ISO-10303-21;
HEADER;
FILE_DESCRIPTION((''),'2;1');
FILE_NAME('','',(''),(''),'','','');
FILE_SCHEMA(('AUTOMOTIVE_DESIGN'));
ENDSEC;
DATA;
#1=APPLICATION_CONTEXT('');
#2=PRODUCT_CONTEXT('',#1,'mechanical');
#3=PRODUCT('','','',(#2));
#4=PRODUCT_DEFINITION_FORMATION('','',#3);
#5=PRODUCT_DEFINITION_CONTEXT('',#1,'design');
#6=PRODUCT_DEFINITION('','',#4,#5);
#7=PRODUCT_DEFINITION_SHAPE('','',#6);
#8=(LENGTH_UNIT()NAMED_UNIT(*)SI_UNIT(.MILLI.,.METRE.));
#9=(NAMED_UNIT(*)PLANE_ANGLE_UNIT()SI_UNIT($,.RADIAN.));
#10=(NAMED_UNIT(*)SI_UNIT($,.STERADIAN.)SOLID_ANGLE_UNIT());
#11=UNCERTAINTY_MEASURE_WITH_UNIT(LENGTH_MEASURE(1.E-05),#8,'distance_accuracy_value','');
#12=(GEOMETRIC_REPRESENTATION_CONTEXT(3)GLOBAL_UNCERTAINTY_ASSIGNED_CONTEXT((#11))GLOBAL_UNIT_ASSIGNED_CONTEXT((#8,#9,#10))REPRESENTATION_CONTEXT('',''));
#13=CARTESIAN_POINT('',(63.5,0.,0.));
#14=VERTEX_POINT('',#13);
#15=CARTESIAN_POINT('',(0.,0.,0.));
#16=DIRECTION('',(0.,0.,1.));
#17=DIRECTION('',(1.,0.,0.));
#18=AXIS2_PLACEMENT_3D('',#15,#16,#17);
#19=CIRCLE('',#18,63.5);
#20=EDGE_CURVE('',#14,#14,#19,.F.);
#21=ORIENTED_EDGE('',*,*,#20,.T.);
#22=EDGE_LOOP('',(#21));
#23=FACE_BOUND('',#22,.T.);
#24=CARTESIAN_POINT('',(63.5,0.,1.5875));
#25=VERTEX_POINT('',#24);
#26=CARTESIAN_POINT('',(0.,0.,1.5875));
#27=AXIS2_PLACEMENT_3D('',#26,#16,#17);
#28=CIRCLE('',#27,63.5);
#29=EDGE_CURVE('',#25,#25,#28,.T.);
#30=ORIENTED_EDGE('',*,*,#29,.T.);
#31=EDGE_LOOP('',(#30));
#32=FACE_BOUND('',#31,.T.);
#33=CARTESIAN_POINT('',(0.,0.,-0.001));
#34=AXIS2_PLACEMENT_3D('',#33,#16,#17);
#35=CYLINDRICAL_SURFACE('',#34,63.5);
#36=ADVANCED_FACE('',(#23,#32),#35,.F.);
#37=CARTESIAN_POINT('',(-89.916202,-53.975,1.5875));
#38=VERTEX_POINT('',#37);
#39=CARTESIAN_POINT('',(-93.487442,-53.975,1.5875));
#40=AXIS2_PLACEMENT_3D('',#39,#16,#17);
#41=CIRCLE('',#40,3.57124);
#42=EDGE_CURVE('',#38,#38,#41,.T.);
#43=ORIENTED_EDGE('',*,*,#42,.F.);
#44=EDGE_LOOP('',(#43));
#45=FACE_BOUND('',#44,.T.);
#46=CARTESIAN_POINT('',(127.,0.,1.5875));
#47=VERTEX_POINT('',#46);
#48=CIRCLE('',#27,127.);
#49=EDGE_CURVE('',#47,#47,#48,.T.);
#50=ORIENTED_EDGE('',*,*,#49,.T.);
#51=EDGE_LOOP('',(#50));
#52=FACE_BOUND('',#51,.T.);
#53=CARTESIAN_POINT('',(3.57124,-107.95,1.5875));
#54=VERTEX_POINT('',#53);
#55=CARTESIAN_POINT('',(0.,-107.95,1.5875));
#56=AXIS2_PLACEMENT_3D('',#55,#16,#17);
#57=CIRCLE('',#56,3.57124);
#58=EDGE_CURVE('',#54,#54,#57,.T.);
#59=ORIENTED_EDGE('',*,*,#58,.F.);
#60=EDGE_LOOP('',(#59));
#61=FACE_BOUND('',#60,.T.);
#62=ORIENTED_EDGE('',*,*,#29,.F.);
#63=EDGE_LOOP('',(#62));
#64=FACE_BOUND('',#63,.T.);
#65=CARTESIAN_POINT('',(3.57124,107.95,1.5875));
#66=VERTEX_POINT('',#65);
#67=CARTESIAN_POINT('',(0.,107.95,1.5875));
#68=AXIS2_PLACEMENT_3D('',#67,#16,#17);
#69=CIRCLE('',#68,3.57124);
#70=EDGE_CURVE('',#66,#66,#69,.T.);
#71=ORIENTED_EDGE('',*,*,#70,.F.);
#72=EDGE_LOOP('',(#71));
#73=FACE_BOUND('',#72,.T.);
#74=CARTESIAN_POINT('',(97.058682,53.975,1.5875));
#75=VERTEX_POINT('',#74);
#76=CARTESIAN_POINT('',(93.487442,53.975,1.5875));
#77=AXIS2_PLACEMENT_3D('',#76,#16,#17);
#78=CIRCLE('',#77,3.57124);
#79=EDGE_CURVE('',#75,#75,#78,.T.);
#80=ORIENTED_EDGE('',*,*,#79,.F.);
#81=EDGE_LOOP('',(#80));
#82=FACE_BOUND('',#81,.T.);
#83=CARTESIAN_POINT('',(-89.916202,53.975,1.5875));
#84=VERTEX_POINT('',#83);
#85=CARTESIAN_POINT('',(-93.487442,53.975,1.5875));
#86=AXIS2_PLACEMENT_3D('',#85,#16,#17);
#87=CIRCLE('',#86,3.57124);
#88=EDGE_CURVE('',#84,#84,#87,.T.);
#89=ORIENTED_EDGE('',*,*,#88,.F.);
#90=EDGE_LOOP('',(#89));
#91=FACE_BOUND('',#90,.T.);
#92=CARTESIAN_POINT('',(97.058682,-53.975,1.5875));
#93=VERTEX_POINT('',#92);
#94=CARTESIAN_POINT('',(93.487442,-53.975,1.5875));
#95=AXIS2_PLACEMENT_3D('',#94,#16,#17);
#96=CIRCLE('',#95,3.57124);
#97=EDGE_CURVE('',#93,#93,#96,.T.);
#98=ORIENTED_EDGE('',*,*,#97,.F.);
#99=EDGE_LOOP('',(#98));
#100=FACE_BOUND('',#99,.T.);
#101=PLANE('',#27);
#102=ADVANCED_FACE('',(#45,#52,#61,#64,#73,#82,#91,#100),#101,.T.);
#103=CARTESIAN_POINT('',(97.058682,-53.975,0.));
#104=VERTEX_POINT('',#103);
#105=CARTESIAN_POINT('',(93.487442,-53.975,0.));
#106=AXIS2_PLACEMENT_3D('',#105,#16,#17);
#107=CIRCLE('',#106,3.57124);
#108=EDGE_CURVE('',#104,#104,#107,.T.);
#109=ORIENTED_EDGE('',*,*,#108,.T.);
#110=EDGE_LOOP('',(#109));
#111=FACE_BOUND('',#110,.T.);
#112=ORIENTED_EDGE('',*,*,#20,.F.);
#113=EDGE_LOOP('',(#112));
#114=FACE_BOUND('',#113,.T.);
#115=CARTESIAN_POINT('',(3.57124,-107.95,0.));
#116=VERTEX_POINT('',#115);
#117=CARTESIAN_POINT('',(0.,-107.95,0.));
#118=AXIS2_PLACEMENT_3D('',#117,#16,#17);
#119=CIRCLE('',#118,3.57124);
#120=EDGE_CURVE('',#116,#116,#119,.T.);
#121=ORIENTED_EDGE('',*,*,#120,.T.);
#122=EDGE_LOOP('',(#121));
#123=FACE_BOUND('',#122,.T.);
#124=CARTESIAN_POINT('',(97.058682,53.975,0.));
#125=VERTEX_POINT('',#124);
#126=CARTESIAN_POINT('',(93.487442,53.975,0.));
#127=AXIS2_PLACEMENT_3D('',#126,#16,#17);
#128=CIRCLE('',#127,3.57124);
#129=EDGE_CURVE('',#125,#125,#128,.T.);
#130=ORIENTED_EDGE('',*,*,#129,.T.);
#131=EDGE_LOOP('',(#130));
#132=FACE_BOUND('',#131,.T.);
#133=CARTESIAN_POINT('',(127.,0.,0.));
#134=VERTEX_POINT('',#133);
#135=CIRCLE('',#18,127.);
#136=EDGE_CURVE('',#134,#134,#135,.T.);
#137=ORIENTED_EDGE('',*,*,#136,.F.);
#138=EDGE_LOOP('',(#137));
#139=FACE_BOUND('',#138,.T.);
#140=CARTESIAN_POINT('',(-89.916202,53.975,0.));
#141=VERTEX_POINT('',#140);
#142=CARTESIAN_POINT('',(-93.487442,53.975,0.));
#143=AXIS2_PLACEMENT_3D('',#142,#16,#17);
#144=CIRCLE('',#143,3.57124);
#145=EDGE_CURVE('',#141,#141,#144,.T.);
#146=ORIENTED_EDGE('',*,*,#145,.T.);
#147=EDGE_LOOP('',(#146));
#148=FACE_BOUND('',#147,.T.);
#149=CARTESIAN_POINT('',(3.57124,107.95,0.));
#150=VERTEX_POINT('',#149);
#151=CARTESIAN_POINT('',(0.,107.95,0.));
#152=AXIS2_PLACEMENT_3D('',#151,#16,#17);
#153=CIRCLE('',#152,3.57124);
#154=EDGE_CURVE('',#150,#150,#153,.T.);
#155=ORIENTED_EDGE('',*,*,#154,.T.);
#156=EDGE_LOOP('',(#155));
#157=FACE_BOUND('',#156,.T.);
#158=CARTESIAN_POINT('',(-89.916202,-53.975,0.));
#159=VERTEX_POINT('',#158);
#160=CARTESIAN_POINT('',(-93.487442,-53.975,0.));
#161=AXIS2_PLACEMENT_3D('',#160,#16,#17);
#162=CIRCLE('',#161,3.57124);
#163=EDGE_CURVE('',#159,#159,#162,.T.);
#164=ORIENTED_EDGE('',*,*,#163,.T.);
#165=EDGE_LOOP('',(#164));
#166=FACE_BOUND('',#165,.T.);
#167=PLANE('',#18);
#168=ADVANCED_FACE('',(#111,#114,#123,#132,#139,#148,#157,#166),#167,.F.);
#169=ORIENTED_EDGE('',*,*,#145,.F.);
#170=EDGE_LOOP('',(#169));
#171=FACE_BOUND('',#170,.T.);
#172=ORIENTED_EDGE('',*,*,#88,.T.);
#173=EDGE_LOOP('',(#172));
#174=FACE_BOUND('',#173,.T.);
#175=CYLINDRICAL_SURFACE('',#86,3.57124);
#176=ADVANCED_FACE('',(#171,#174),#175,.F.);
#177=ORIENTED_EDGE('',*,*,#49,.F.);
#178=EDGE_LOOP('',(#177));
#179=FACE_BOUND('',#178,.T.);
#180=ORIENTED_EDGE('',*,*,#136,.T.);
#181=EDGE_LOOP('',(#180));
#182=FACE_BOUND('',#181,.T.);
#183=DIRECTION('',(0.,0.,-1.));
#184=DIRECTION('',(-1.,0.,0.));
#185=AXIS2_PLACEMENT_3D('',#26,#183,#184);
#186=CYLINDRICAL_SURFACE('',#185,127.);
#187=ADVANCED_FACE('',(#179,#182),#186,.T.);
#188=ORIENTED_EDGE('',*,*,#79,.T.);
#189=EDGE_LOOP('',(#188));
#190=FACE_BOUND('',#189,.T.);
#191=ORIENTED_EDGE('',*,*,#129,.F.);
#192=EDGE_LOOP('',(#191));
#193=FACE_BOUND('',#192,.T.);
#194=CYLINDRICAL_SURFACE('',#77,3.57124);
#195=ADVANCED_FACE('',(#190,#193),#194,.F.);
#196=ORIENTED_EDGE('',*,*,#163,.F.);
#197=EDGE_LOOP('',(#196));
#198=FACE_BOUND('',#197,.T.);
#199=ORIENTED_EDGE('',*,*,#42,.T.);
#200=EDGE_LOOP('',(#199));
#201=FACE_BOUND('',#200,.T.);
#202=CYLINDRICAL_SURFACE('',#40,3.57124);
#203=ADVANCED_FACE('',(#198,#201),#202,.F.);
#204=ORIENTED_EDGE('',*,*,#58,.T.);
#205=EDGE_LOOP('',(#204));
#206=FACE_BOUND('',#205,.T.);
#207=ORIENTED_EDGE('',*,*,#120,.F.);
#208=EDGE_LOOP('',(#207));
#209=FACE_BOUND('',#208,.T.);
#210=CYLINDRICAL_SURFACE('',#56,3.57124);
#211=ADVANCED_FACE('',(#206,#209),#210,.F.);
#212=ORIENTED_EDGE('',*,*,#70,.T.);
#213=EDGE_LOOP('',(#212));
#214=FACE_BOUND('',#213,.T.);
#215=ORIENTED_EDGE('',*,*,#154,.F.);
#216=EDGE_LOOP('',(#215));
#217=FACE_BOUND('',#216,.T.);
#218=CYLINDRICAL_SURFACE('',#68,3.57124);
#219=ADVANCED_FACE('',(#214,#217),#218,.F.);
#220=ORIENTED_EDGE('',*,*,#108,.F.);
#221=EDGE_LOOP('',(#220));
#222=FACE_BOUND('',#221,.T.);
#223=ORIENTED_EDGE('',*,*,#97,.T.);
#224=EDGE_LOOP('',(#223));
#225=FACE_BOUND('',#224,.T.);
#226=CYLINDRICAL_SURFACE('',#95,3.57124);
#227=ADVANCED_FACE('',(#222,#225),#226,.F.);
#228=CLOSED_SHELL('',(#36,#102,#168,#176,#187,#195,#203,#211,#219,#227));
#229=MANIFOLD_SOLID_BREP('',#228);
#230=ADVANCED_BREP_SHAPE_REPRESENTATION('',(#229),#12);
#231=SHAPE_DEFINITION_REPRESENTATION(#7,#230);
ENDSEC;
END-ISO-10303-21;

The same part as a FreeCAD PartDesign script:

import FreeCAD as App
import Part
import Sketcher

V = App.Vector
Q = App.Units.Quantity

doc = App.newDocument("Part")
body = doc.addObject("PartDesign::Body", "Body")

# Sketch on XY plane
sketch1 = doc.addObject("Sketcher::SketchObject", "Sketch")
body.addObject(sketch1)
sketch1.AttachmentSupport = (doc.XY_Plane, [""])
sketch1.MapMode = "FlatFace"
sketch1.addGeometry(Part.Circle(V(0, 0, 0), V(0, 0, 1), 127), False)
sketch1.addConstraint([
    Sketcher.Constraint("Coincident", 0, 3, -1, 1),
    Sketcher.Constraint("Diameter", 0, Q("10 in")),
])
pad1 = doc.addObject("PartDesign::Pad", "Pad")
body.addObject(pad1)
pad1.Profile = sketch1
pad1.Length = Q("0.0625 in")

# Sketch on XY plane
sketch2 = doc.addObject("Sketcher::SketchObject", "Sketch001")
body.addObject(sketch2)
sketch2.AttachmentSupport = (doc.XY_Plane, [""])
sketch2.MapMode = "FlatFace"
sketch2.AttachmentOffset = App.Placement(V(0, 0, 0.0625 * 25.4), App.Rotation())
sketch2.addGeometry([
    Part.Circle(V(-93.5, 54, 0), V(0, 0, 1), 3.6),  # 0
    Part.Circle(V(0, 108, 0), V(0, 0, 1), 3.6),  # 1
    Part.Circle(V(93.5, 54, 0), V(0, 0, 1), 3.6),  # 2
    Part.Circle(V(93.5, -54, 0), V(0, 0, 1), 3.6),  # 3
    Part.Circle(V(0, -108, 0), V(0, 0, 1), 3.6),  # 4
    Part.Circle(V(-93.5, -54, 0), V(0, 0, 1), 3.6),  # 5
], False)
sketch2.addConstraint([
    Sketcher.Constraint("Equal", 0, 1),
    Sketcher.Constraint("Equal", 1, 2),
    Sketcher.Constraint("Equal", 2, 3),
    Sketcher.Constraint("Equal", 3, 4),
    Sketcher.Constraint("Equal", 4, 5),
    Sketcher.Constraint("Symmetric", 0, 3, 3, 3, -1, 1),
    Sketcher.Constraint("Symmetric", 1, 3, 4, 3, -1, 1),
    Sketcher.Constraint("Symmetric", 2, 3, 5, 3, -1, 1),
    Sketcher.Constraint("Symmetric", 0, 3, 2, 3, -2),
    Sketcher.Constraint("PointOnObject", 1, 3, -2),
    Sketcher.Constraint("Diameter", 0, Q("0.2812 in")),
    Sketcher.Constraint("DistanceY", 4, 3, 1, 3, Q("8.5 in")),
    Sketcher.Constraint("DistanceY", 3, 3, 2, 3, Q("4.25 in")),
    Sketcher.Constraint("DistanceX", 0, 3, -1, 1, 93.487442),
])
doc.recompute()
hole = doc.addObject("PartDesign::Hole", "Hole")
body.addObject(hole)
hole.Profile = sketch2
hole.ThreadType = "None"
hole.Diameter = Q("0.2812 in")
hole.DepthType = "ThroughAll"

# Sketch on XY plane
sketch3 = doc.addObject("Sketcher::SketchObject", "Sketch002")
body.addObject(sketch3)
sketch3.AttachmentSupport = (doc.XY_Plane, [""])
sketch3.MapMode = "FlatFace"
sketch3.AttachmentOffset = App.Placement(V(0, 0, 0.0625 * 25.4), App.Rotation())
sketch3.addGeometry(Part.Circle(V(0, 0, 0), V(0, 0, 1), 64), False)
sketch3.addConstraint([
    Sketcher.Constraint("Coincident", 0, 3, -1, 1),
    Sketcher.Constraint("Diameter", 0, Q("5 in")),
])
pocket1 = doc.addObject("PartDesign::Pocket", "Pocket")
body.addObject(pocket1)
pocket1.Profile = sketch3
pocket1.Type = "UpToFirst"

doc.recompute()
